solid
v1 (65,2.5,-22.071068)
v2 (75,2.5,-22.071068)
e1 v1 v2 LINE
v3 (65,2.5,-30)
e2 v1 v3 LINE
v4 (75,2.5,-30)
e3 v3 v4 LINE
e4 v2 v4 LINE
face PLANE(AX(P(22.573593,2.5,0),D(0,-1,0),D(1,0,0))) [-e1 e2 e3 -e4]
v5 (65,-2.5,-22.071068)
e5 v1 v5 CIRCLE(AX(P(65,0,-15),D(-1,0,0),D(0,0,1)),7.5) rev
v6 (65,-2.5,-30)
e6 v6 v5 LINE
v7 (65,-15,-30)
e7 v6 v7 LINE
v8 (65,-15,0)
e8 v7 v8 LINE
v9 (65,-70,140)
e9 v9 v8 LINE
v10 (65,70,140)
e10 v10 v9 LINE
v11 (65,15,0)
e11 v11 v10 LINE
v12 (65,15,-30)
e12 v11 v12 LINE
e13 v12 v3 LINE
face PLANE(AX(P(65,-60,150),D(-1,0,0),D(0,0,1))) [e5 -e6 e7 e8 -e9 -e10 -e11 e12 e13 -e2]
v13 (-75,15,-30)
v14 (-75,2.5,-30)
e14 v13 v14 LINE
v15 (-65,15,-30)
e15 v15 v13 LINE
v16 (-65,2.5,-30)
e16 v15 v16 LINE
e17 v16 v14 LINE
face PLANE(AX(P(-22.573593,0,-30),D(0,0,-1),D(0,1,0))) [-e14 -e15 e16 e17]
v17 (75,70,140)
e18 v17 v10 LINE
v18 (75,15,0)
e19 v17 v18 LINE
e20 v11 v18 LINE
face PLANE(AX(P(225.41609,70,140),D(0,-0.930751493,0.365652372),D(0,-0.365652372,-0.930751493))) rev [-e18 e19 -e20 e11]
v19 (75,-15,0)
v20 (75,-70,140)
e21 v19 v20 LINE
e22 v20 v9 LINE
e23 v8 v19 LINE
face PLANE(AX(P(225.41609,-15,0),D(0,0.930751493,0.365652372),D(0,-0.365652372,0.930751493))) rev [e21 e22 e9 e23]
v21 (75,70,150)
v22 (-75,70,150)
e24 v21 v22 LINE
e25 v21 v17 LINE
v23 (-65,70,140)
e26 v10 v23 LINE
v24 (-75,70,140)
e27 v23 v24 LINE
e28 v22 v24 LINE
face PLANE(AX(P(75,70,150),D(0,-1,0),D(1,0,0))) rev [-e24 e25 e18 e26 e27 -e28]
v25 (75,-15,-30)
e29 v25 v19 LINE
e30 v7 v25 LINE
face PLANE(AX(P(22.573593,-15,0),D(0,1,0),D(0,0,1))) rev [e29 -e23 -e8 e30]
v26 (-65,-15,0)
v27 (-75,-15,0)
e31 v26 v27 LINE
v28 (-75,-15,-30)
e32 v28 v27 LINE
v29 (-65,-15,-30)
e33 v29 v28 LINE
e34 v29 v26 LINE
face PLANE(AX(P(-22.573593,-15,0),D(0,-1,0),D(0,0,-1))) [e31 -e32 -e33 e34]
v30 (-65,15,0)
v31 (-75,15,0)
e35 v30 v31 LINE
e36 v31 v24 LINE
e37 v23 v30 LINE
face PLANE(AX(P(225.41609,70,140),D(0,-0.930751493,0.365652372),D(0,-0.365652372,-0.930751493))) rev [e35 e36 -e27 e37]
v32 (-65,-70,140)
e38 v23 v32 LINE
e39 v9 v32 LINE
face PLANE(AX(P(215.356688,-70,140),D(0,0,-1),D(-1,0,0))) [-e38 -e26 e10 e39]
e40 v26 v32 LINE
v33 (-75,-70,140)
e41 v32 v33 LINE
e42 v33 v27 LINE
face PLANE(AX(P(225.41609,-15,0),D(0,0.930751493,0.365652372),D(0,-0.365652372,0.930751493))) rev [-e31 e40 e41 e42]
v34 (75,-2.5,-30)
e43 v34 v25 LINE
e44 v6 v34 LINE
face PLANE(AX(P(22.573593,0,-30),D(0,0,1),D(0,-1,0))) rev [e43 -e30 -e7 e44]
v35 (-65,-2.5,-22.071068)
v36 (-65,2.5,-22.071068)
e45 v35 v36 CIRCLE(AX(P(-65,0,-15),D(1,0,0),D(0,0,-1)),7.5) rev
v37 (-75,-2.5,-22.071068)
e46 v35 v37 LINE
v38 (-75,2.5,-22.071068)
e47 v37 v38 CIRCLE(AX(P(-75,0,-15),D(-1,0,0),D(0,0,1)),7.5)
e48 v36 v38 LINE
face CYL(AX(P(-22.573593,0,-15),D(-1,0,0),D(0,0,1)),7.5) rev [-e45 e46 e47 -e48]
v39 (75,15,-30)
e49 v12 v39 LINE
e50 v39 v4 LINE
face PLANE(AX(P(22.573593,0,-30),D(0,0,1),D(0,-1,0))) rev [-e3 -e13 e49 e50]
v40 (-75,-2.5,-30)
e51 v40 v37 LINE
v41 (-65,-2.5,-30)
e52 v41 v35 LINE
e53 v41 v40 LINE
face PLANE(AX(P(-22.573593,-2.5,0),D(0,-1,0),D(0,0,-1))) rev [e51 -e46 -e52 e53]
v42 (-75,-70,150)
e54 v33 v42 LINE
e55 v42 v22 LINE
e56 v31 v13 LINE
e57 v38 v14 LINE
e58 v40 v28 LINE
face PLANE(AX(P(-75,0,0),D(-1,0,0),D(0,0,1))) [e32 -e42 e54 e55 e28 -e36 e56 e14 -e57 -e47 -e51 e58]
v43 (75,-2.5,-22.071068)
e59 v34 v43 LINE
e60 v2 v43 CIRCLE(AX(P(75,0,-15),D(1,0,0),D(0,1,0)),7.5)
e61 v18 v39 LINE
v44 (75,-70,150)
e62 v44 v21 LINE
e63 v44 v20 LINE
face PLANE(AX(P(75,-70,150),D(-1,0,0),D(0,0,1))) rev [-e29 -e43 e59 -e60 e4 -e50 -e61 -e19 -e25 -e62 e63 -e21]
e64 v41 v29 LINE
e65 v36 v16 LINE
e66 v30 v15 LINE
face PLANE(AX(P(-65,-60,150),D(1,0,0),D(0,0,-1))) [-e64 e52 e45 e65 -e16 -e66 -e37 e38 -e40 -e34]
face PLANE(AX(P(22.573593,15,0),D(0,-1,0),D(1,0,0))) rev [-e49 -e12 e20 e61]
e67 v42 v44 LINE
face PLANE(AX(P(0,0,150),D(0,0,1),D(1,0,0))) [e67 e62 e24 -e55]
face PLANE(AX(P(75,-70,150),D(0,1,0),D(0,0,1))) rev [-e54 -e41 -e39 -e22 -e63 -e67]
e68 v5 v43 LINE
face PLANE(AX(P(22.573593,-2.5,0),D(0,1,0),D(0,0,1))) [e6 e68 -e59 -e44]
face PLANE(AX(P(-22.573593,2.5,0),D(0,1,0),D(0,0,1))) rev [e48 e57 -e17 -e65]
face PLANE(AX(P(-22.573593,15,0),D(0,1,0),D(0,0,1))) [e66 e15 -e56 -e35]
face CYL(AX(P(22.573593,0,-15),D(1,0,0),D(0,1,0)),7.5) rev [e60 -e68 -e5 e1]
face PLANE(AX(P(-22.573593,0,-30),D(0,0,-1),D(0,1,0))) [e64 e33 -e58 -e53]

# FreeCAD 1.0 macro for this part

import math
import FreeCAD as App
import Part
import Sketcher
from FreeCAD import Vector

doc = App.newDocument("Part")
body = doc.addObject("PartDesign::Body", "Body")
body.AllowCompound = True

# Sketch on XY plane
sketch1 = body.newObject("Sketcher::SketchObject", "Sketch")
sketch1.AttachmentSupport = (doc.getObject("XY_Plane"), [""])
sketch1.MapMode = "FlatFace"
sketch1.addGeometry([
    Part.LineSegment(Vector(-75, 70, 0), Vector(-75, -70, 0)),  # 0
    Part.LineSegment(Vector(-75, -70, 0), Vector(75, -70, 0)),  # 1
    Part.LineSegment(Vector(75, -70, 0), Vector(75, 70, 0)),  # 2
    Part.LineSegment(Vector(75, 70, 0), Vector(-75, 70, 0)),  # 3
    Part.LineSegment(Vector(65, -60, 0), Vector(-65, -60, 0)),  # 4
    Part.LineSegment(Vector(-65, -60, 0), Vector(-65, 60, 0)),  # 5
    Part.LineSegment(Vector(-65, 60, 0), Vector(65, 60, 0)),  # 6
    Part.LineSegment(Vector(65, 60, 0), Vector(65, -60, 0)),  # 7
], False)
sketch1.addConstraint([
    Sketcher.Constraint("Coincident", 0, 2, 1, 1),
    Sketcher.Constraint("Coincident", 1, 2, 2, 1),
    Sketcher.Constraint("Coincident", 2, 2, 3, 1),
    Sketcher.Constraint("Coincident", 3, 2, 0, 1),
    Sketcher.Constraint("Coincident", 4, 2, 5, 1),
    Sketcher.Constraint("Coincident", 5, 2, 6, 1),
    Sketcher.Constraint("Coincident", 6, 2, 7, 1),
    Sketcher.Constraint("Coincident", 7, 2, 4, 1),
    Sketcher.Constraint("Vertical", 0),
    Sketcher.Constraint("Horizontal", 1),
    Sketcher.Constraint("Vertical", 2),
    Sketcher.Constraint("Horizontal", 3),
    Sketcher.Constraint("Horizontal", 4),
    Sketcher.Constraint("Vertical", 5),
    Sketcher.Constraint("Horizontal", 6),
    Sketcher.Constraint("Vertical", 7),
    Sketcher.Constraint("Symmetric", 0, 2, 2, 2, -1, 1),
    Sketcher.Constraint("Symmetric", 4, 2, 6, 2, -1, 1),
    Sketcher.Constraint("DistanceX", 1, 1, 1, 2, 150.0),
    Sketcher.Constraint("DistanceX", 4, 2, 4, 1, 130.0),
    Sketcher.Constraint("DistanceY", 0, 2, 0, 1, 140.0),
    Sketcher.Constraint("DistanceY", 5, 1, 5, 2, 120.0),
])
pad1 = body.newObject("PartDesign::Pad", "Pad")
pad1.Profile = sketch1
pad1.Length = 150

# Sketch on YZ plane
sketch2 = body.newObject("Sketcher::SketchObject", "Sketch001")
sketch2.AttachmentSupport = (doc.getObject("YZ_Plane"), [""])
sketch2.MapMode = "FlatFace"
sketch2.AttachmentOffset = App.Placement(Vector(0, 0, 75), App.Rotation())
sketch2.addGeometry([
    Part.LineSegment(Vector(15, -30, 0), Vector(15, 0, 0)),  # 0
    Part.LineSegment(Vector(15, 0, 0), Vector(-15, 0, 0)),  # 1
    Part.LineSegment(Vector(-15, 0, 0), Vector(-15, -30, 0)),  # 2
    Part.LineSegment(Vector(-15, -30, 0), Vector(-2, -30, 0)),  # 3
    Part.LineSegment(Vector(-2, -30, 0), Vector(-2, -22, 0)),  # 4
    Part.ArcOfCircle(Part.Circle(Vector(0, -15, 0), Vector(0, 0, 1), 8), math.radians(-71), math.radians(251)),  # 5
    Part.LineSegment(Vector(2, -22, 0), Vector(2, -30, 0)),  # 6
    Part.LineSegment(Vector(2, -30, 0), Vector(15, -30, 0)),  # 7
], False)
sketch2.addConstraint([
    Sketcher.Constraint("Coincident", 0, 2, 1, 1),
    Sketcher.Constraint("Coincident", 1, 2, 2, 1),
    Sketcher.Constraint("Coincident", 2, 2, 3, 1),
    Sketcher.Constraint("Coincident", 3, 2, 4, 1),
    Sketcher.Constraint("Coincident", 4, 2, 5, 2),
    Sketcher.Constraint("Coincident", 5, 1, 6, 1),
    Sketcher.Constraint("Coincident", 6, 2, 7, 1),
    Sketcher.Constraint("Coincident", 7, 2, 0, 1),
    Sketcher.Constraint("Vertical", 0),
    Sketcher.Constraint("Horizontal", 1),
    Sketcher.Constraint("Vertical", 2),
    Sketcher.Constraint("Horizontal", 3),
    Sketcher.Constraint("Vertical", 4),
    Sketcher.Constraint("Vertical", 6),
    Sketcher.Constraint("Horizontal", 7),
    Sketcher.Constraint("Symmetric", 0, 2, 1, 2, -1, 1),
    Sketcher.Constraint("Symmetric", 4, 2, 5, 1, -2),
    Sketcher.Constraint("Horizontal", 3, 2, 6, 2),
    Sketcher.Constraint("Equal", 1, 0),
    Sketcher.Constraint("Radius", 5, 7.5),
    Sketcher.Constraint("DistanceX", 1, 2, 1, 1, 30.0),
    Sketcher.Constraint("DistanceX", 3, 1, 3, 2, 12.5),
    Sketcher.Constraint("DistanceY", 5, 3, -1, 1, 15.0),
])
pad2 = body.newObject("PartDesign::Pad", "Pad001")
pad2.Profile = sketch2
pad2.Length = 10
pad2.Reversed = True

# Sketch on YZ plane
sketch3 = body.newObject("Sketcher::SketchObject", "Sketch002")
sketch3.AttachmentSupport = (doc.getObject("YZ_Plane"), [""])
sketch3.MapMode = "FlatFace"
sketch3.AttachmentOffset = App.Placement(Vector(0, 0, -75), App.Rotation())
sketch3.addGeometry([
    Part.LineSegment(Vector(-15, 0, 0), Vector(15, 0, 0)),  # 0
    Part.LineSegment(Vector(15, 0, 0), Vector(15, -30, 0)),  # 1
    Part.LineSegment(Vector(15, -30, 0), Vector(2, -30, 0)),  # 2
    Part.LineSegment(Vector(2, -30, 0), Vector(2, -22, 0)),  # 3
    Part.ArcOfCircle(Part.Circle(Vector(0, -15, 0), Vector(0, 0, 1), 8), math.radians(-71), math.radians(90)),  # 4
    Part.ArcOfCircle(Part.Circle(Vector(0, -15, 0), Vector(0, 0, 1), 8), math.radians(90), math.radians(251)),  # 5
    Part.LineSegment(Vector(-2, -22, 0), Vector(-2, -30, 0)),  # 6
    Part.LineSegment(Vector(-2, -30, 0), Vector(-15, -30, 0)),  # 7
    Part.LineSegment(Vector(-15, -30, 0), Vector(-15, 0, 0)),  # 8
], False)
sketch3.addConstraint([
    Sketcher.Constraint("Coincident", 0, 2, 1, 1),
    Sketcher.Constraint("Coincident", 1, 2, 2, 1),
    Sketcher.Constraint("Coincident", 2, 2, 3, 1),
    Sketcher.Constraint("Coincident", 3, 2, 4, 1),
    Sketcher.Constraint("Tangent", 4, 2, 5, 1),
    Sketcher.Constraint("Coincident", 5, 2, 6, 1),
    Sketcher.Constraint("Coincident", 6, 2, 7, 1),
    Sketcher.Constraint("Coincident", 7, 2, 8, 1),
    Sketcher.Constraint("Coincident", 8, 2, 0, 1),
    Sketcher.Constraint("Horizontal", 0),
    Sketcher.Constraint("Vertical", 1),
    Sketcher.Constraint("Horizontal", 2),
    Sketcher.Constraint("Vertical", 3),
    Sketcher.Constraint("Vertical", 6),
    Sketcher.Constraint("Horizontal", 7),
    Sketcher.Constraint("Vertical", 8),
    Sketcher.Constraint("Equal", 4, 5),
    Sketcher.Constraint("Symmetric", 0, 2, 8, 2, -1, 1),
    Sketcher.Constraint("Symmetric", 3, 2, 5, 2, -2),
    Sketcher.Constraint("PointOnObject", 4, 2, -2),
    Sketcher.Constraint("Horizontal", 2, 2, 6, 2),
    Sketcher.Constraint("Equal", 0, 1),
    Sketcher.Constraint("Radius", 4, 7.5),
    Sketcher.Constraint("DistanceX", 0, 1, 0, 2, 30.0),
    Sketcher.Constraint("DistanceX", 2, 2, 2, 1, 12.5),
    Sketcher.Constraint("DistanceY", 4, 3, -1, 1, 15.0),
])
pad3 = body.newObject("PartDesign::Pad", "Pad002")
pad3.Profile = sketch3
pad3.Length = 10

# Sketch on XZ plane
sketch4 = body.newObject("Sketcher::SketchObject", "Sketch003")
sketch4.AttachmentSupport = (doc.getObject("XZ_Plane"), [""])
sketch4.MapMode = "FlatFace"
sketch4.AttachmentOffset = App.Placement(Vector(0, 0, 70), App.Rotation())
sketch4.addGeometry([
    Part.LineSegment(Vector(-65, 150, 0), Vector(-65, 0, 0)),
    Part.LineSegment(Vector(-65, 0, 0), Vector(65, 0, 0)),
    Part.LineSegment(Vector(65, 0, 0), Vector(65, 150, 0)),
    Part.LineSegment(Vector(65, 150, 0), Vector(-65, 150, 0)),
], False)
sketch4.addConstraint([
    Sketcher.Constraint("Coincident", 0, 2, 1, 1),
    Sketcher.Constraint("Coincident", 1, 2, 2, 1),
    Sketcher.Constraint("Coincident", 2, 2, 3, 1),
    Sketcher.Constraint("Coincident", 3, 2, 0, 1),
    Sketcher.Constraint("Vertical", 0),
    Sketcher.Constraint("Horizontal", 1),
    Sketcher.Constraint("Vertical", 2),
    Sketcher.Constraint("Horizontal", 3),
    Sketcher.Constraint("Symmetric", 0, 2, 1, 2, -1, 1),
    Sketcher.Constraint("DistanceX", 1, 1, 1, 2, 130.0),
    Sketcher.Constraint("DistanceY", 0, 2, 0, 1, 150.0),
])
pocket1 = body.newObject("PartDesign::Pocket", "Pocket")
pocket1.Profile = sketch4
pocket1.Length = 140

# Sketch on YZ plane
sketch5 = body.newObject("Sketcher::SketchObject", "Sketch004")
sketch5.AttachmentSupport = (doc.getObject("YZ_Plane"), [""])
sketch5.MapMode = "FlatFace"
sketch5.AttachmentOffset = App.Placement(Vector(0, 0, -75), App.Rotation())
sketch5.addGeometry([
    Part.LineSegment(Vector(70, 140, 0), Vector(-70, 140, 0)),
    Part.LineSegment(Vector(-70, 140, 0), Vector(-70, 150, 0)),
    Part.LineSegment(Vector(-70, 150, 0), Vector(70, 150, 0)),
    Part.LineSegment(Vector(70, 150, 0), Vector(70, 140, 0)),
], False)
sketch5.addConstraint([
    Sketcher.Constraint("Coincident", 0, 2, 1, 1),
    Sketcher.Constraint("Coincident", 1, 2, 2, 1),
    Sketcher.Constraint("Coincident", 2, 2, 3, 1),
    Sketcher.Constraint("Coincident", 3, 2, 0, 1),
    Sketcher.Constraint("Horizontal", 0),
    Sketcher.Constraint("Vertical", 1),
    Sketcher.Constraint("Horizontal", 2),
    Sketcher.Constraint("Vertical", 3),
    Sketcher.Constraint("DistanceX", 0, 2, 0, 1, 140.0),
    Sketcher.Constraint("DistanceY", 1, 1, 1, 2, 10.0),
    Sketcher.Constraint("DistanceX", 0, 2, -1, 1, 70.0),
    Sketcher.Constraint("DistanceY", -1, 1, 0, 2, 140.0),
])
pad4 = body.newObject("PartDesign::Pad", "Pad003")
pad4.Profile = sketch5
pad4.Length = 150

# Sketch on YZ plane
sketch6 = body.newObject("Sketcher::SketchObject", "Sketch005")
sketch6.AttachmentSupport = (doc.getObject("YZ_Plane"), [""])
sketch6.MapMode = "FlatFace"
sketch6.AttachmentOffset = App.Placement(Vector(0, 0, -75), App.Rotation())
sketch6.addGeometry([
    Part.LineSegment(Vector(-70, 140, 0), Vector(-15, 0, 0)),  # 0
    Part.LineSegment(Vector(-15, 0, 0), Vector(-70, 0, 0)),  # 1
    Part.LineSegment(Vector(-70, 0, 0), Vector(-70, 140, 0)),  # 2
    Part.LineSegment(Vector(70, 0, 0), Vector(15, 0, 0)),  # 3
    Part.LineSegment(Vector(15, 0, 0), Vector(70, 140, 0)),  # 4
    Part.LineSegment(Vector(70, 140, 0), Vector(70, 0, 0)),  # 5
], False)
sketch6.addConstraint([
    Sketcher.Constraint("Coincident", 0, 2, 1, 1),
    Sketcher.Constraint("Coincident", 1, 2, 2, 1),
    Sketcher.Constraint("Coincident", 2, 2, 0, 1),
    Sketcher.Constraint("Coincident", 3, 2, 4, 1),
    Sketcher.Constraint("Coincident", 4, 2, 5, 1),
    Sketcher.Constraint("Coincident", 5, 2, 3, 1),
    Sketcher.Constraint("Horizontal", 1),
    Sketcher.Constraint("Vertical", 2),
    Sketcher.Constraint("Horizontal", 3),
    Sketcher.Constraint("Vertical", 5),
    Sketcher.Constraint("Symmetric", 0, 2, 3, 2, -1, 1),
    Sketcher.Constraint("Symmetric", 2, 2, 4, 2, -2),
    Sketcher.Constraint("PointOnObject", 0, 2, -1),
    Sketcher.Constraint("DistanceX", 1, 2, 1, 1, 55.0),
    Sketcher.Constraint("DistanceY", 2, 1, 2, 2, 140.0),
    Sketcher.Constraint("DistanceX", 0, 2, -1, 1, 15.0),
])
pocket2 = body.newObject("PartDesign::Pocket", "Pocket001")
pocket2.Profile = sketch6
pocket2.Type = "ThroughAll"
pocket2.Midplane = True

doc.recompute()
